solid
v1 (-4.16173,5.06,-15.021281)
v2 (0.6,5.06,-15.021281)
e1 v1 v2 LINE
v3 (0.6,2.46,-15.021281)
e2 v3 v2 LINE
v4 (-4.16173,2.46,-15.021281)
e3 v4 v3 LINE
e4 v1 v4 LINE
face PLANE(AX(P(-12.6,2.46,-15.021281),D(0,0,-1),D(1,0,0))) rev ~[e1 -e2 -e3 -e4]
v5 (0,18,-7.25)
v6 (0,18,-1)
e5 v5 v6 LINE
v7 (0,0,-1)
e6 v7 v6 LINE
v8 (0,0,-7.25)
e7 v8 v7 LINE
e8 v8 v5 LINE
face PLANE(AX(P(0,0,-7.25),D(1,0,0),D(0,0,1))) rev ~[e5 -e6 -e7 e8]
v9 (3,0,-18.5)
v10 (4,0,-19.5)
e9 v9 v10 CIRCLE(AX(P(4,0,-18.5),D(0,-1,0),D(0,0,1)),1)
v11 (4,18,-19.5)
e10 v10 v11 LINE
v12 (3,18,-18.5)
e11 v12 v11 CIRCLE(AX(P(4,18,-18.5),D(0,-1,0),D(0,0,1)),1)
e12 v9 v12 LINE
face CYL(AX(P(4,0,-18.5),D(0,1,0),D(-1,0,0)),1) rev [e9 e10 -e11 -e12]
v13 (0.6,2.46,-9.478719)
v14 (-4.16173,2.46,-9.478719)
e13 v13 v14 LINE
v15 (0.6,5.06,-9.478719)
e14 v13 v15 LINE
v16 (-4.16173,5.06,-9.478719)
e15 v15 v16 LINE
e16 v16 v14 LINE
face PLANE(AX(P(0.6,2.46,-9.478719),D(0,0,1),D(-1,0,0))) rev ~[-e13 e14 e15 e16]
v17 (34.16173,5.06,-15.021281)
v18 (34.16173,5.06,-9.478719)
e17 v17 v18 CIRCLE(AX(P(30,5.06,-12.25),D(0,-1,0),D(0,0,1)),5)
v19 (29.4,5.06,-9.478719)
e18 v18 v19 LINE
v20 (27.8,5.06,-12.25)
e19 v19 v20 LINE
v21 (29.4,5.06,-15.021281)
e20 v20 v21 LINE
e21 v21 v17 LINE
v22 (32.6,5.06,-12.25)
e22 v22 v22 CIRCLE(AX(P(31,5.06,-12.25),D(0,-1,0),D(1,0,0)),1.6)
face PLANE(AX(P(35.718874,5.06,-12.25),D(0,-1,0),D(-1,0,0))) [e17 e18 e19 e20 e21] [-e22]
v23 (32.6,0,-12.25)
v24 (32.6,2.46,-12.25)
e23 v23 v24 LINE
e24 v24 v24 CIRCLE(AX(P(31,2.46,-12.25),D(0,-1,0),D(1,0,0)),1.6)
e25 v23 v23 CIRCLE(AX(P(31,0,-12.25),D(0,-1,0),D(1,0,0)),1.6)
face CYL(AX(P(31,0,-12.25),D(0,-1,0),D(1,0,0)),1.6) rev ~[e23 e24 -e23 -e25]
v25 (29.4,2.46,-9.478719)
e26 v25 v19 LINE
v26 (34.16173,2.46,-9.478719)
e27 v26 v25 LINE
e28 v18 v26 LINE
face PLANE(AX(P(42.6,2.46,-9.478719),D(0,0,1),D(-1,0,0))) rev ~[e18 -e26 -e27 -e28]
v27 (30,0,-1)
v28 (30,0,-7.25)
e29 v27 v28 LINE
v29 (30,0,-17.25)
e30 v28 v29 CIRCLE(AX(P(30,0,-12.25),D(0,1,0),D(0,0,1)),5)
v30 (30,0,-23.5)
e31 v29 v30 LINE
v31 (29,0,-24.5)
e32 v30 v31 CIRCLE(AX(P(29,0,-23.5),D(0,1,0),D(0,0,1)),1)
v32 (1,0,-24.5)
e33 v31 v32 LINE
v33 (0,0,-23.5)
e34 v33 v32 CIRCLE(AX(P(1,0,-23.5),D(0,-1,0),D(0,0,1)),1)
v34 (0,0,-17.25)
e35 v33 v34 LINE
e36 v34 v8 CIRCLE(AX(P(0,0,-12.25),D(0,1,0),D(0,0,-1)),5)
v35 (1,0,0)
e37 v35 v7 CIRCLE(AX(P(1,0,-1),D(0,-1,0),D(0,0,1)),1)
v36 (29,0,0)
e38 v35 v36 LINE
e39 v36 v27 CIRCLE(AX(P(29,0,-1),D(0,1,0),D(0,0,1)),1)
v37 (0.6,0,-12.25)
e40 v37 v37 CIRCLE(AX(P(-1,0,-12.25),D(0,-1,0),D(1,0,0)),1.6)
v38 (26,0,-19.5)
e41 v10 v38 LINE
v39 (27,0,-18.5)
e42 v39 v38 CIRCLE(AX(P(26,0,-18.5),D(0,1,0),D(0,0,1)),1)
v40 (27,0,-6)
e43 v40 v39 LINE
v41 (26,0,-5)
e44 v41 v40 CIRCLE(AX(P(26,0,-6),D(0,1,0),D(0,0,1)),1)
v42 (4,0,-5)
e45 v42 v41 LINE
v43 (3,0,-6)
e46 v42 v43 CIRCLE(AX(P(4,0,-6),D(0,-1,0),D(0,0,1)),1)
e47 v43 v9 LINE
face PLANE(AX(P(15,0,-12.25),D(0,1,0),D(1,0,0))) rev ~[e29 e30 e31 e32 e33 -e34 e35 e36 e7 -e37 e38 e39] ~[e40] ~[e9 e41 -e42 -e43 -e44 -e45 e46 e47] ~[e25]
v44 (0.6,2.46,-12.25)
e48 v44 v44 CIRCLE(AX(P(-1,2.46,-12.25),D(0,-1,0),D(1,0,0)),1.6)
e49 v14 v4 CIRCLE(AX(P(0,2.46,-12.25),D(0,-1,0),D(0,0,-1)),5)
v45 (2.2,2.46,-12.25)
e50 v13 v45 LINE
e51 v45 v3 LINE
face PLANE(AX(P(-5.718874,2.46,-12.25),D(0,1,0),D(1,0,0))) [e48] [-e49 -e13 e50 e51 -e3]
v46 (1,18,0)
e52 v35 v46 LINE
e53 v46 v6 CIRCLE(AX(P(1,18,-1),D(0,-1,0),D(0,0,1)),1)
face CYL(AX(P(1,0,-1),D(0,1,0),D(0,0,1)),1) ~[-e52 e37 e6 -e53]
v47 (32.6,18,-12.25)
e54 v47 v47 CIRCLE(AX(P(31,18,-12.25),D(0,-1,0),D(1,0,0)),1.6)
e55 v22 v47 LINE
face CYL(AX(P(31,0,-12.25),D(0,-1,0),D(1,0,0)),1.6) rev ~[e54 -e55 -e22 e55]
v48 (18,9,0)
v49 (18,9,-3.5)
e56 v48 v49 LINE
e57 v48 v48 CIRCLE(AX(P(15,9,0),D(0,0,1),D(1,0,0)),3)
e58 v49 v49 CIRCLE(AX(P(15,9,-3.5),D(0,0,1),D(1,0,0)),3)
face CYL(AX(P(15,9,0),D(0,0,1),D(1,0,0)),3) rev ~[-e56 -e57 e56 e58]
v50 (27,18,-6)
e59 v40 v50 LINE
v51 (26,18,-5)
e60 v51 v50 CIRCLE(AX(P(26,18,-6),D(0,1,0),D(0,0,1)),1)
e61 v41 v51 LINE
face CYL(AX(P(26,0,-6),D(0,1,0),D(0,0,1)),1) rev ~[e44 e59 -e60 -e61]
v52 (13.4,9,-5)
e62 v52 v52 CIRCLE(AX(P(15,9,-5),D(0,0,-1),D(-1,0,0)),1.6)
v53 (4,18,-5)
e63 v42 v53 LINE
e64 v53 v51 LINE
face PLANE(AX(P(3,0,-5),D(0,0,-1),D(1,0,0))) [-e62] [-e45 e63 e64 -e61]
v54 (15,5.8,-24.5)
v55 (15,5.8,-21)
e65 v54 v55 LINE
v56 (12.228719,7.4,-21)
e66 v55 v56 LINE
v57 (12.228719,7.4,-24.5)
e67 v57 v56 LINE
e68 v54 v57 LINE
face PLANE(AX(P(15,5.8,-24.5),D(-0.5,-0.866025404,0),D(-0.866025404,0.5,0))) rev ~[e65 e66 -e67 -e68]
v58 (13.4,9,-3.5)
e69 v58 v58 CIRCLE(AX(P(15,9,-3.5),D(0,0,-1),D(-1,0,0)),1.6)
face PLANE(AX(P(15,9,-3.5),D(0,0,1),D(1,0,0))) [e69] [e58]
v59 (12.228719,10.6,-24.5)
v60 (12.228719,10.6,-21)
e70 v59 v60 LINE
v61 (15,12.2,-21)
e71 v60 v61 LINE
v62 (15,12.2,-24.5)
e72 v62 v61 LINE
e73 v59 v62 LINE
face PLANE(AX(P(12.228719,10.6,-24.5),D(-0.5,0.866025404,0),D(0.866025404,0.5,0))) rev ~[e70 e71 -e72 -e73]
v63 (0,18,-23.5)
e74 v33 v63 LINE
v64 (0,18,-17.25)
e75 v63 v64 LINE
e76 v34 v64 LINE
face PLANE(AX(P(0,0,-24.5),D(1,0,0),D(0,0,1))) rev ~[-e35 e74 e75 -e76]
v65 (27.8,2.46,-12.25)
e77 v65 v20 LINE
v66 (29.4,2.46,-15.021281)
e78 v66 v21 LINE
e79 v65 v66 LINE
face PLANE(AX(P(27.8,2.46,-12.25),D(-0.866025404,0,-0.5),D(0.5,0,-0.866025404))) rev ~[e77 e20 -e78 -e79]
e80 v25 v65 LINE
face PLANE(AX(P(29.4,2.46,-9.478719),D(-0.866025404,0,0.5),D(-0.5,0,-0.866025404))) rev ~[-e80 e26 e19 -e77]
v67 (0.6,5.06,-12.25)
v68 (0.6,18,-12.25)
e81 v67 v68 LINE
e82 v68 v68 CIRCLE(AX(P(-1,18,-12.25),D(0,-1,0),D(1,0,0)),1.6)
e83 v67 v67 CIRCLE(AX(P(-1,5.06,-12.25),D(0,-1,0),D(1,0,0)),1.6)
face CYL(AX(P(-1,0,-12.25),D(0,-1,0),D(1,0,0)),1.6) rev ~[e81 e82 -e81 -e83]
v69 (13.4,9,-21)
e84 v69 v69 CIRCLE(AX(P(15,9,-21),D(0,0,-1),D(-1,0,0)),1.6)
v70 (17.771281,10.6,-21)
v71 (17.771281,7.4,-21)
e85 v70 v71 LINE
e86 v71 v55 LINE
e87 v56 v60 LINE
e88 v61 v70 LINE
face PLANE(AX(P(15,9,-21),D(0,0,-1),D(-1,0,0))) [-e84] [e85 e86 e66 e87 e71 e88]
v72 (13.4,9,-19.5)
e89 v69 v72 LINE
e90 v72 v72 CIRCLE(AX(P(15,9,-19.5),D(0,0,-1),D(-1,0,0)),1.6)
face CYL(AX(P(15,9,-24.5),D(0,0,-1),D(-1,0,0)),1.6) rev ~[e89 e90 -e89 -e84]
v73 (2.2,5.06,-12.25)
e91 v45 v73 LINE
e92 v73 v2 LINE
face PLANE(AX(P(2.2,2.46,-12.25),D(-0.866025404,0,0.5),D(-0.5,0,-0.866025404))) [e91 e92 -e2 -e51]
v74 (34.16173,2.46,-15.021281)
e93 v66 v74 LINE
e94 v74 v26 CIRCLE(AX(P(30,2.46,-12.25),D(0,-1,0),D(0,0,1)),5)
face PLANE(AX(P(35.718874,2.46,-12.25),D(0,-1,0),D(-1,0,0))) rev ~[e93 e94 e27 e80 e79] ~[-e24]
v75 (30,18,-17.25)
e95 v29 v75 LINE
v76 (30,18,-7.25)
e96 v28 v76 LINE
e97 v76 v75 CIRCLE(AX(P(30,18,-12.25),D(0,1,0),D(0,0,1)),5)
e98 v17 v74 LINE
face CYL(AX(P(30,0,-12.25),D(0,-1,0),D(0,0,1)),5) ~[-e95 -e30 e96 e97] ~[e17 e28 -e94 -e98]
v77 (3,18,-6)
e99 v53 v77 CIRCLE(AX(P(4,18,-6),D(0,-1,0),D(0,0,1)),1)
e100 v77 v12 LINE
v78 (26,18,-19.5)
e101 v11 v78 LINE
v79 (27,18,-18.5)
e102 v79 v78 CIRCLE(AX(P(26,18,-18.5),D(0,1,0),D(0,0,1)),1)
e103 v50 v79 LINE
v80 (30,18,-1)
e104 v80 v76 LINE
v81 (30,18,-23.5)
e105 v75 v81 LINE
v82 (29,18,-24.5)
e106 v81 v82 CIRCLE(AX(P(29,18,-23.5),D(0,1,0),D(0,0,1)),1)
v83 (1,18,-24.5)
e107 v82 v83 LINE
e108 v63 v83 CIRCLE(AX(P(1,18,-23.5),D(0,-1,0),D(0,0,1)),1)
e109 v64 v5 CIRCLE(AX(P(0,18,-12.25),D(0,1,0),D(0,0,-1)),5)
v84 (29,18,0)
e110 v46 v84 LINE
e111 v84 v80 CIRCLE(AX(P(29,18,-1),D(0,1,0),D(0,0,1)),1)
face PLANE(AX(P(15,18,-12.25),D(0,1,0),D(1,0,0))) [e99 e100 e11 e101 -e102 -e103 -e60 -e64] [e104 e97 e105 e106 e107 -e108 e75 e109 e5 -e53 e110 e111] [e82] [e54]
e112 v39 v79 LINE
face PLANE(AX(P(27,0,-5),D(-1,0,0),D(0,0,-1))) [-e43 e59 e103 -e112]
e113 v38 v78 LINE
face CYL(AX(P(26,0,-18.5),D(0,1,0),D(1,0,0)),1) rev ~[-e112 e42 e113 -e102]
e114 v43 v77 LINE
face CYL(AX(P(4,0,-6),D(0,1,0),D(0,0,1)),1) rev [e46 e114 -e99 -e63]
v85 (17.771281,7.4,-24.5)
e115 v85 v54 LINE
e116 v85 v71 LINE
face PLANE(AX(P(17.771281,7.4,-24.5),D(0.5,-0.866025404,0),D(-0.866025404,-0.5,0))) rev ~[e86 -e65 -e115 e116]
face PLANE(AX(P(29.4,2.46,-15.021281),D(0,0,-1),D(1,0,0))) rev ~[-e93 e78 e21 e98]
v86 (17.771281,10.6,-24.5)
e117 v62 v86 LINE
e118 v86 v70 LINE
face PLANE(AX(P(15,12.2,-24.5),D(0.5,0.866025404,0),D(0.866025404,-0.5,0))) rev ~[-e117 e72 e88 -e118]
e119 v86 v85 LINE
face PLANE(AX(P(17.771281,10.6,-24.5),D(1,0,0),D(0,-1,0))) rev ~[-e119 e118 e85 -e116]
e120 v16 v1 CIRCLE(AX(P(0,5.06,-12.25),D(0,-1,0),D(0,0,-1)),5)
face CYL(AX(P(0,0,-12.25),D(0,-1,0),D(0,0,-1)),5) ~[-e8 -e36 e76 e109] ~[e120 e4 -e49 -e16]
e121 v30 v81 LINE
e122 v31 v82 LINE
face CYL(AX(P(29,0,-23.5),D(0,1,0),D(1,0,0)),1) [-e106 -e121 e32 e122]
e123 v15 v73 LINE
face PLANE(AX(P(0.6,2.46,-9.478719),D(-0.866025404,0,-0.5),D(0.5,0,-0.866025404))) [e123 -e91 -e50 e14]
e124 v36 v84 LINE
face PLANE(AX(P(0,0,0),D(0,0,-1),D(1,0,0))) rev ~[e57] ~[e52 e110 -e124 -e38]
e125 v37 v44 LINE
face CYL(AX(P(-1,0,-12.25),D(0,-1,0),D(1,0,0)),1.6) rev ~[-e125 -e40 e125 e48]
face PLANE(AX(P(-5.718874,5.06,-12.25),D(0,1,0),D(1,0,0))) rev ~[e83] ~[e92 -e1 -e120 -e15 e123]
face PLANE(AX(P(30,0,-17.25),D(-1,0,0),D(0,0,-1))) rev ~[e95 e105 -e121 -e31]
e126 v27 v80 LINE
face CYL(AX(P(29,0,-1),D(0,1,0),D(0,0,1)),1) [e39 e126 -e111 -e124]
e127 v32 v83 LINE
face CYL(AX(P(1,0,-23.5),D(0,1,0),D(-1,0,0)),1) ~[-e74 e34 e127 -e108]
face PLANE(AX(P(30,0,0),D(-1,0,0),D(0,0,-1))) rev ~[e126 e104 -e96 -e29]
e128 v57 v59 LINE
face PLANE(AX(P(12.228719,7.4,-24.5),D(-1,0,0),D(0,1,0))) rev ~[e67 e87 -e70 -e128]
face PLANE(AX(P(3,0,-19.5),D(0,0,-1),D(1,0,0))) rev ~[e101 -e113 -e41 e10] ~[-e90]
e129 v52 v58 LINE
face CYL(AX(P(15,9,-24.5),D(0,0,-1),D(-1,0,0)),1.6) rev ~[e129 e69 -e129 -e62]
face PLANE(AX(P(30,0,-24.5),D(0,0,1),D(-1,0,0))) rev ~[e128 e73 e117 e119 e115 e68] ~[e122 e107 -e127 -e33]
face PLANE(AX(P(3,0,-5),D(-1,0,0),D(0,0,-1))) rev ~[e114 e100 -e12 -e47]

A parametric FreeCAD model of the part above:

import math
import FreeCAD as App
import Part
import Sketcher

V = App.Vector
Q = App.Units.Quantity


def edges_at(feature, points):
    """Names of the edges that pass closest to the given points."""
    edges = feature.Shape.Edges
    near = lambda p: min(range(len(edges)), key=lambda i: edges[i].distToShape(Part.Vertex(*p))[0])
    return sorted({f"Edge{near(p) + 1}" for p in points})


def add_polygon(sketch, points):
    """Adds a closed chain of lines whose ends are joined by coincident constraints."""
    first, n = sketch.GeometryCount, len(points)
    for a, b in zip(points, points[1:] + points[:1]):
        sketch.addGeometry(Part.LineSegment(App.Vector(*a, 0), App.Vector(*b, 0)), False)
    for i in range(n):
        sketch.addConstraint(Sketcher.Constraint("Coincident", first + i, 2, first + (i + 1) % n, 1))

doc = App.newDocument("Part")
body = doc.addObject("PartDesign::Body", "Body")

sketch1 = body.newObject("Sketcher::SketchObject", "Sketch")
sketch1.AttachmentSupport = (doc.getObject("XZ_Plane"), [""])
sketch1.MapMode = "FlatFace"
sketch1.addGeometry(Part.LineSegment(V(0, 0, 0), V(30, 0, 0)), False)
sketch1.addGeometry(Part.LineSegment(V(30, 0, 0), V(30, -7, 0)), False)
sketch1.addGeometry(Part.ArcOfCircle(Part.Circle(V(30, -12, 0), V(0, 0, 1), 5), math.radians(-90), math.radians(90)), False)
sketch1.addGeometry(Part.LineSegment(V(30, -17, 0), V(30, -24, 0)), False)
sketch1.addGeometry(Part.LineSegment(V(30, -24, 0), V(0, -24, 0)), False)
sketch1.addGeometry(Part.LineSegment(V(0, -24, 0), V(0, -17, 0)), False)
sketch1.addGeometry(Part.ArcOfCircle(Part.Circle(V(0, -12, 0), V(0, 0, 1), 5), math.radians(90), math.radians(270)), False)
sketch1.addGeometry(Part.LineSegment(V(0, -7, 0), V(0, 0, 0)), False)
add_polygon(sketch1, [(27, -5), (3, -5), (3, -20), (27, -20)])
sketch1.addConstraint([
    Sketcher.Constraint("Coincident", 0, 2, 1, 1),
    Sketcher.Constraint("Coincident", 1, 2, 2, 2),
    Sketcher.Constraint("Coincident", 2, 1, 3, 1),
    Sketcher.Constraint("Coincident", 3, 2, 4, 1),
    Sketcher.Constraint("Coincident", 4, 2, 5, 1),
    Sketcher.Constraint("Coincident", 5, 2, 6, 2),
    Sketcher.Constraint("Coincident", 6, 1, 7, 1),
    Sketcher.Constraint("Coincident", 7, 2, 0, 1),
    Sketcher.Constraint("Horizontal", 0),
    Sketcher.Constraint("Vertical", 1),
    Sketcher.Constraint("Vertical", 3),
    Sketcher.Constraint("Horizontal", 4),
    Sketcher.Constraint("Vertical", 5),
    Sketcher.Constraint("Vertical", 7),
    Sketcher.Constraint("Horizontal", 8),
    Sketcher.Constraint("Vertical", 9),
    Sketcher.Constraint("Horizontal", 10),
    Sketcher.Constraint("Vertical", 11),
    Sketcher.Constraint("Coincident", 7, 2, -1, 1),
    Sketcher.Constraint("Equal", 2, 6),
    Sketcher.Constraint("PointOnObject", 6, 3, -2),
    Sketcher.Constraint("PointOnObject", 4, 2, -2),
    Sketcher.Constraint("Horizontal", 2, 3, 6, 3),
    Sketcher.Constraint("Vertical", 2, 3, 0, 2),
    Sketcher.Constraint("Vertical", 1, 2, 2, 1),
    Sketcher.Constraint("Equal", 1, 3),
    Sketcher.Constraint("Radius", 2, 5.0),
    Sketcher.Constraint("DistanceX", 0, 1, 0, 2, 30.0),
    Sketcher.Constraint("DistanceX", 8, 2, 8, 1, 24.0),
    Sketcher.Constraint("DistanceY", 9, 2, 9, 1, 14.5),
    Sketcher.Constraint("DistanceX", -1, 1, 8, 2, 3.0),
    Sketcher.Constraint("DistanceY", 8, 2, -1, 1, 5.0),
    Sketcher.Constraint("DistanceY", 4, 2, 9, 2, 5.0),
])
pad1 = body.newObject("PartDesign::Pad", "Pad")
pad1.Profile = sketch1
pad1.Length = 18
pad1.Reversed = True

sketch2 = body.newObject("Sketcher::SketchObject", "Sketch001")
sketch2.AttachmentSupport = (doc.getObject("XZ_Plane"), [""])
sketch2.MapMode = "FlatFace"
sketch2.addGeometry([
    Part.Circle(V(31, -12.2, 0), V(0, 0, 1), 1.6),
    Part.Circle(V(-1, -12.2, 0), V(0, 0, 1), 1.6),
], False)
sketch2.addConstraint([
    Sketcher.Constraint("Equal", 0, 1),
    Sketcher.Constraint("Horizontal", 0, 3, 1, 3),
    Sketcher.Constraint("Diameter", 0, 3.2),
    Sketcher.Constraint("DistanceX", -1, 1, 0, 3, 31.0),
    Sketcher.Constraint("DistanceX", 1, 3, -1, 1, 1.0),
    Sketcher.Constraint("DistanceY", 0, 3, -1, 1, 12.25),
])
pocket1 = body.newObject("PartDesign::Pocket", "Pocket")
pocket1.Profile = sketch2
pocket1.Type = "ThroughAll"

sketch3 = body.newObject("Sketcher::SketchObject", "Sketch002")
sketch3.AttachmentSupport = (doc.getObject("XY_Plane"), [""])
sketch3.MapMode = "FlatFace"
sketch3.AttachmentOffset = App.Placement(V(0, 0, -24.5), App.Rotation())
sketch3.addGeometry(Part.Circle(V(15, 9, 0), V(0, 0, 1), 1.6), False)
sketch3.addConstraint([
    Sketcher.Constraint("Diameter", 0, 3.2),
    Sketcher.Constraint("DistanceX", -1, 1, 0, 3, 15.0),
    Sketcher.Constraint("DistanceY", -1, 1, 0, 3, 9.0),
])
pocket2 = body.newObject("PartDesign::Pocket", "Pocket001")
pocket2.Profile = sketch3
pocket2.Type = "ThroughAll"
pocket2.Reversed = True

sketch4 = body.newObject("Sketcher::SketchObject", "Sketch003")
sketch4.AttachmentSupport = (doc.getObject("XY_Plane"), [""])
sketch4.MapMode = "FlatFace"
sketch4.addGeometry(Part.Circle(V(15, 9, 0), V(0, 0, 1), 3), False)
sketch4.addConstraint([
    Sketcher.Constraint("Diameter", 0, 6.0),
    Sketcher.Constraint("DistanceX", -1, 1, 0, 3, 15.0),
    Sketcher.Constraint("DistanceY", -1, 1, 0, 3, 9.0),
])
pocket3 = body.newObject("PartDesign::Pocket", "Pocket002")
pocket3.Profile = sketch4
pocket3.Length = 3.5

sketch5 = body.newObject("Sketcher::SketchObject", "Sketch004")
sketch5.AttachmentSupport = (doc.getObject("XY_Plane"), [""])
sketch5.MapMode = "FlatFace"
sketch5.AttachmentOffset = App.Placement(V(0, 0, -24.5), App.Rotation())
add_polygon(sketch5, [(12.2, 7.4), (12.2, 10.6), (15, 12.2), (17.8, 10.6), (17.8, 7.4), (15, 5.8)])
sketch5.addConstraint([
    Sketcher.Constraint("Vertical", 0),
    Sketcher.Constraint("Vertical", 3),
    Sketcher.Constraint("Parallel", 1, 4),
    Sketcher.Constraint("Parallel", 2, 5),
    Sketcher.Constraint("Horizontal", 0, 2, 2, 2),
    Sketcher.Constraint("Horizontal", 3, 2, 5, 2),
    Sketcher.Constraint("Vertical", 1, 2, 4, 2),
    Sketcher.Constraint("Angle", 1, Q("30 deg")),
    Sketcher.Constraint("DistanceY", 0, 1, 0, 2, 3.2),
    Sketcher.Constraint("DistanceX", -1, 1, 1, 2, 15.0),
    Sketcher.Constraint("Distance", 1, 3.2),
    Sketcher.Constraint("DistanceY", -1, 1, 0, 2, 10.6),
])
pocket4 = body.newObject("PartDesign::Pocket", "Pocket003")
pocket4.Profile = sketch5
pocket4.Length = 3.5
pocket4.Reversed = True
doc.recompute()

fillet = body.newObject("PartDesign::Fillet", "Fillet")
fillet.Base = (pocket4, edges_at(pocket4, [
    (0, 9, -24.5),
    (30, 9, -24.5),
    (30, 9, 0),
    (0, 9, 0),
    (27, 9, -5),
    (27, 9, -19.5),
    (3, 9, -19.5),
    (3, 9, -5),
]))
fillet.Radius = 1

sketch6 = body.newObject("Sketcher::SketchObject", "Sketch005")
sketch6.AttachmentSupport = (doc.getObject("XZ_Plane"), [""])
sketch6.MapMode = "FlatFace"
sketch6.AttachmentOffset = App.Placement(V(0, 0, -2.46), App.Rotation())
add_polygon(sketch6, [(42.6, -15), (42.6, -9.5), (29.4, -9.5), (27.8, -12.2), (29.4, -15)])
add_polygon(sketch6, [(-12.6, -15), (0.6, -15), (2.2, -12.2), (0.6, -9.5), (-12.6, -9.5)])
sketch6.addConstraint([
    Sketcher.Constraint("Vertical", 0),
    Sketcher.Constraint("Horizontal", 1),
    Sketcher.Constraint("Horizontal", 4),
    Sketcher.Constraint("Horizontal", 5),
    Sketcher.Constraint("Horizontal", 8),
    Sketcher.Constraint("Vertical", 9),
    Sketcher.Constraint("Parallel", 2, 6),
    Sketcher.Constraint("Parallel", 3, 7),
    Sketcher.Constraint("Horizontal", 4, 2, 5, 2),
    Sketcher.Constraint("Horizontal", 2, 2, 6, 2),
    Sketcher.Constraint("Horizontal", 1, 2, 7, 2),
    Sketcher.Constraint("Vertical", 1, 2, 3, 2),
    Sketcher.Constraint("Vertical", 5, 2, 7, 2),
    Sketcher.Constraint("Equal", 4, 5),
    Sketcher.Constraint("Angle", 2, Q("-120 deg")),
    Sketcher.Constraint("DistanceX", 1, 2, 1, 1, 13.2),
    Sketcher.Constraint("DistanceX", 5, 2, 4, 2, 42.0),
    Sketcher.Constraint("Distance", 2, 3.2),
    Sketcher.Constraint("DistanceX", -1, 1, 0, 2, 42.6),
    Sketcher.Constraint("DistanceY", 2, 2, -1, 1, 12.25),
])
pocket5 = body.newObject("PartDesign::Pocket", "Pocket004")
pocket5.Profile = sketch6
pocket5.Length = 2.6

doc.recompute()
